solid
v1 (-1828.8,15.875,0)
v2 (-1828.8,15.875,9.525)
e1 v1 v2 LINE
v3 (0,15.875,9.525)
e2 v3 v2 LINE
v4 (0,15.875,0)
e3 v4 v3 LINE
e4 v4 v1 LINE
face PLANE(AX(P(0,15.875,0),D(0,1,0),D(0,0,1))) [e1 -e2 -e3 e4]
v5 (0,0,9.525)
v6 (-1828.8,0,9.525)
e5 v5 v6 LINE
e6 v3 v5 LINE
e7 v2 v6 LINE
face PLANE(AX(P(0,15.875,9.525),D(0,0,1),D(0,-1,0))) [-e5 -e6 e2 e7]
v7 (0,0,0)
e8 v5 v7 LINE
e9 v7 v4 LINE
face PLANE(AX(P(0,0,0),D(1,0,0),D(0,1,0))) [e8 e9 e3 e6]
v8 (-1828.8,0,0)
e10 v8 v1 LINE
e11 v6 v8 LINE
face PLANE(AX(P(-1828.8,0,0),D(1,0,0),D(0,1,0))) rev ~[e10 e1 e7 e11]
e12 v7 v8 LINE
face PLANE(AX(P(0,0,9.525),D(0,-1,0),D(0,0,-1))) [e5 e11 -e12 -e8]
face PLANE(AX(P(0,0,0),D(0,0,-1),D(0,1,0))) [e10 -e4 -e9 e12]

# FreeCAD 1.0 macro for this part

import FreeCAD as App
import Part
import Sketcher
Q = App.Units.Quantity

doc = App.newDocument("Part")
params = doc.addObject("Spreadsheet::Sheet", "Params")
for row, (alias, value) in enumerate([
    ("sketch1_width", "0.625 in"),
    ("sketch1_height", "0.375 in"),
    ("pad1_length", "72 in"),
], start=1):
    params.set(f"A{row}", alias)
    params.set(f"B{row}", "=" + value)
    params.setAlias(f"B{row}", alias)

body = doc.addObject("PartDesign::Body", "Body")

# Sketch on YZ plane
sketch1 = body.newObject("Sketcher::SketchObject", "Sketch")
sketch1.AttachmentSupport = (doc.getObject("YZ_Plane"), [""])
sketch1.MapMode = "FlatFace"
sketch1.addGeometry(Part.LineSegment(App.Vector(0, 9.525, 0), App.Vector(0, 0, 0)), False)
sketch1.addGeometry(Part.LineSegment(App.Vector(0, 0, 0), App.Vector(15.875, 0, 0)), False)
sketch1.addGeometry(Part.LineSegment(App.Vector(15.875, 0, 0), App.Vector(15.875, 9.525, 0)), False)
sketch1.addGeometry(Part.LineSegment(App.Vector(15.875, 9.525, 0), App.Vector(0, 9.525, 0)), False)
sketch1.addConstraint(Sketcher.Constraint("Coincident", 0, 2, 1, 1))
sketch1.addConstraint(Sketcher.Constraint("Coincident", 1, 2, 2, 1))
sketch1.addConstraint(Sketcher.Constraint("Coincident", 2, 2, 3, 1))
sketch1.addConstraint(Sketcher.Constraint("Coincident", 3, 2, 0, 1))
sketch1.addConstraint(Sketcher.Constraint("Vertical", 0))
sketch1.addConstraint(Sketcher.Constraint("Horizontal", 1))
sketch1.addConstraint(Sketcher.Constraint("Vertical", 2))
sketch1.addConstraint(Sketcher.Constraint("Horizontal", 3))
sketch1.addConstraint(Sketcher.Constraint("Coincident", 0, 2, -1, 1))
sketch1.addConstraint(Sketcher.Constraint("DistanceX", 1, 1, 1, 2, Q("0.625 in")))
sketch1.addConstraint(Sketcher.Constraint("DistanceY", 0, 2, 0, 1, Q("0.375 in")))
sketch1.setExpression("Constraints[9]", "Params.sketch1_width")
sketch1.setExpression("Constraints[10]", "Params.sketch1_height")
pad1 = body.newObject("PartDesign::Pad", "Pad")
pad1.Profile = sketch1
pad1.setExpression("Length", "Params.pad1_length")
pad1.Reversed = True

doc.recompute()
